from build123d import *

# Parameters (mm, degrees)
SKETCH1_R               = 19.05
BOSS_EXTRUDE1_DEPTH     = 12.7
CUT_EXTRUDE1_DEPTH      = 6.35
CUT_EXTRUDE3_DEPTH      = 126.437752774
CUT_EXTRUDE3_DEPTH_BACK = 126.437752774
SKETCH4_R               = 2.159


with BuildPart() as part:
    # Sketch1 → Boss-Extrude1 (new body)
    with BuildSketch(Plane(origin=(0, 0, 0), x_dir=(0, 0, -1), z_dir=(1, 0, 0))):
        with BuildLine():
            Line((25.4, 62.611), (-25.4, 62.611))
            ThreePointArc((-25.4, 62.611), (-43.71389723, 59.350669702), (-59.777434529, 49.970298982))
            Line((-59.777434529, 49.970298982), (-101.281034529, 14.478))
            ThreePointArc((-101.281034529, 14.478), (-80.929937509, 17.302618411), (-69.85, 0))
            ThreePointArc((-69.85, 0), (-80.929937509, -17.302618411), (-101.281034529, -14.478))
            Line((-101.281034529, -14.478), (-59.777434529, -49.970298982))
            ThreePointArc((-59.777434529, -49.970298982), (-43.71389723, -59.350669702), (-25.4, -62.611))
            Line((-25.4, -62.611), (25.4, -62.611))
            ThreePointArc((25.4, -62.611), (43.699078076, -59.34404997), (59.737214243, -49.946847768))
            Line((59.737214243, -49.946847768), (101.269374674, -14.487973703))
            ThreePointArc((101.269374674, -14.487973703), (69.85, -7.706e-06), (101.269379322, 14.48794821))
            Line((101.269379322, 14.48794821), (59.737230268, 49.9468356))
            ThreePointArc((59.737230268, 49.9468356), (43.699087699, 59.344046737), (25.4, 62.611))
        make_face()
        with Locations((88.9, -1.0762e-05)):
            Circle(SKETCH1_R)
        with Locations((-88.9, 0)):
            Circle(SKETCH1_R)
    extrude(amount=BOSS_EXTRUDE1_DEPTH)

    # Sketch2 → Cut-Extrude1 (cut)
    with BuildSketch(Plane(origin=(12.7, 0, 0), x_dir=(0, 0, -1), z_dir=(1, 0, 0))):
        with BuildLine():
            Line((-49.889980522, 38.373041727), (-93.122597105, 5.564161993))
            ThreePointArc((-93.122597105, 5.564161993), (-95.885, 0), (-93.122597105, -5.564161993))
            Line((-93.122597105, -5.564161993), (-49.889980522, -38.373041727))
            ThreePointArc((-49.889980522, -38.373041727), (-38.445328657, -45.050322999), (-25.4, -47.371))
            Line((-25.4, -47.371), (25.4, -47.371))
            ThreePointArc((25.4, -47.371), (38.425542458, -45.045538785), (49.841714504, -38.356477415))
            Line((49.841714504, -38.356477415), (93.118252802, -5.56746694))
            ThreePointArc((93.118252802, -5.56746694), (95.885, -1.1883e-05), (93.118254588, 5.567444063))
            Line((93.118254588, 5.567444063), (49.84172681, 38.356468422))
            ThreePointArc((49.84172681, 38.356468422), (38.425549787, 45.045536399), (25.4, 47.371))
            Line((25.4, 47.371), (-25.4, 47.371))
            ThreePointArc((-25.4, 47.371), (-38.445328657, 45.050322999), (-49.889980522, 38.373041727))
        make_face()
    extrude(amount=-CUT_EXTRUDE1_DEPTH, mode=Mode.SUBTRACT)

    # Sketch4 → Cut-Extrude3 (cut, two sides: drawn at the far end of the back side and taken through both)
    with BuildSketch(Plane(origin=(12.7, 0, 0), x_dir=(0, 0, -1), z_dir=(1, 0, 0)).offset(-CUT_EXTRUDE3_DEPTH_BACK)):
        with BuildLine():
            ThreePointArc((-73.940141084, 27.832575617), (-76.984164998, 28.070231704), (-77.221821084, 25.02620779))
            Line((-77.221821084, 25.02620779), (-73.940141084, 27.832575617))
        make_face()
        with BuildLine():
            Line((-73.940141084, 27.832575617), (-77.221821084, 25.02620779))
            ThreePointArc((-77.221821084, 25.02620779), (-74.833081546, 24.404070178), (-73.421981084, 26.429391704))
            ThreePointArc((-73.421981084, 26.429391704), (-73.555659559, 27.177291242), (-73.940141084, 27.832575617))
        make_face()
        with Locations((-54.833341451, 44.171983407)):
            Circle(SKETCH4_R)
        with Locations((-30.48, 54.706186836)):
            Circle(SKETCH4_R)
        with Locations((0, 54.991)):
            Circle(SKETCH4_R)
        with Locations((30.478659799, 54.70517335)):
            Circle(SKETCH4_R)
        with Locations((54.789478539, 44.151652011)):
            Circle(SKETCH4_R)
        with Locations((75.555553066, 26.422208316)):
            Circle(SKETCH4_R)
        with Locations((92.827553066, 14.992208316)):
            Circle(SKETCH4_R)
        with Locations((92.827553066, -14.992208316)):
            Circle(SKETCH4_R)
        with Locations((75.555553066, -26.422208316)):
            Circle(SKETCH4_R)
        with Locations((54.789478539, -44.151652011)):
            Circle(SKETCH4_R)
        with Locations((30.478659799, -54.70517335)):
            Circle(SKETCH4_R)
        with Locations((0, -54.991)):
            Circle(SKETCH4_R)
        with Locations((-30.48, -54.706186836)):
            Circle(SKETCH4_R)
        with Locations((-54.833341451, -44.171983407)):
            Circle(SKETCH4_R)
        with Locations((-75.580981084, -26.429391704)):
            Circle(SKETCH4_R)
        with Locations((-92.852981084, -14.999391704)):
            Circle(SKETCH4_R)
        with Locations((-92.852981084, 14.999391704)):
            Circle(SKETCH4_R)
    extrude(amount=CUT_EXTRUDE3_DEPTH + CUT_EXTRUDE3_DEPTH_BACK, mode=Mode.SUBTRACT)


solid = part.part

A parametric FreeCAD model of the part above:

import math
import FreeCAD as App
import Part
import Sketcher
from FreeCAD import Vector
Q = App.Units.Quantity

doc = App.newDocument("Part")
body = doc.addObject("PartDesign::Body", "Body")

sketch1 = body.newObject("Sketcher::SketchObject", "Sketch")
sketch1.AttachmentSupport = (doc.getObject("YZ_Plane"), [""])
sketch1.MapMode = "FlatFace"
sketch1.addGeometry([
    Part.LineSegment(Vector(62.611, -25.4, 0), Vector(62.611, 25.4, 0)),
    Part.ArcOfCircle(Part.Circle(Vector(9.544508, 25.4, 0), Vector(0, 0, 1), 53.066492), math.radians(0), math.radians(40.377298)),
    Part.LineSegment(Vector(49.970299, 59.777435, 0), Vector(14.478, 101.281035, 0)),
    Part.ArcOfCircle(Part.Circle(Vector(0, 88.9, 0), Vector(0, 0, 1), 19.05), math.radians(40.535802), math.radians(139.464198)),
    Part.LineSegment(Vector(-14.478, 101.281035, 0), Vector(-49.970299, 59.777435, 0)),
    Part.ArcOfCircle(Part.Circle(Vector(-9.544508, 25.4, 0), Vector(0, 0, 1), 53.066492), math.radians(139.622702), math.radians(180)),
    Part.LineSegment(Vector(-62.611, 25.4, 0), Vector(-62.611, -25.4, 0)),
    Part.ArcOfCircle(Part.Circle(Vector(-9.728462, -25.4, 0), Vector(0, 0, 1), 52.882538), math.radians(180), math.radians(220.489675)),
    Part.LineSegment(Vector(-49.946848, -59.737214, 0), Vector(-14.487974, -101.269375, 0)),
    Part.ArcOfCircle(Part.Circle(Vector(-0.000011, -88.9, 0), Vector(0, 0, 1), 19.05), math.radians(-139.510325), math.radians(-40.489693)),
    Part.LineSegment(Vector(14.487948, -101.269379, 0), Vector(49.946836, -59.73723, 0)),
    Part.ArcOfCircle(Part.Circle(Vector(9.728457, -25.4, 0), Vector(0, 0, 1), 52.882543), math.radians(-40.489693), math.radians(0)),
], False)
sketch1.addConstraint([
    Sketcher.Constraint("Tangent", 0, 2, 1, 1),
    Sketcher.Constraint("Coincident", 1, 2, 2, 1),
    Sketcher.Constraint("Tangent", 2, 2, 3, 1),
    Sketcher.Constraint("Tangent", 3, 2, 4, 1),
    Sketcher.Constraint("Coincident", 4, 2, 5, 1),
    Sketcher.Constraint("Tangent", 5, 2, 6, 1),
    Sketcher.Constraint("Tangent", 6, 2, 7, 1),
    Sketcher.Constraint("Tangent", 7, 2, 8, 1),
    Sketcher.Constraint("Tangent", 8, 2, 9, 1),
    Sketcher.Constraint("Tangent", 9, 2, 10, 1),
    Sketcher.Constraint("Tangent", 10, 2, 11, 1),
    Sketcher.Constraint("Tangent", 11, 2, 0, 1),
    Sketcher.Constraint("Vertical", 0),
    Sketcher.Constraint("Vertical", 6),
    Sketcher.Constraint("Equal", 1, 5),
    Sketcher.Constraint("Equal", 3, 9),
    Sketcher.Constraint("Symmetric", 0, 2, 6, 2, -1, 1),
    Sketcher.Constraint("Symmetric", 7, 3, 11, 3, -2),
    Sketcher.Constraint("Symmetric", 2, 2, 3, 2, -2),
    Sketcher.Constraint("Horizontal", 1, 3, 5, 3),
    Sketcher.Constraint("Equal", 4, 8),
    Sketcher.Constraint("Equal", 8, 10),
    Sketcher.Constraint("DistanceY", 0, 1, 0, 2, Q("2 in")),
    Sketcher.Constraint("Radius", 3, Q("0.75 in")),
    Sketcher.Constraint("DistanceY", 9, 3, 3, 3, Q("7 in")),
    Sketcher.Constraint("DistanceY", -1, 1, 3, 3, Q("3.5 in")),
    Sketcher.Constraint("Distance", 2, Q("2.15 in")),
    Sketcher.Constraint("DistanceX", -1, 1, 2, 2, Q("0.57 in")),
    Sketcher.Constraint("DistanceX", -1, 1, 0, 2, Q("2.465 in")),
])
pad1 = body.newObject("PartDesign::Pad", "Pad")
pad1.Profile = sketch1
pad1.Length = Q("0.5 in")

sketch2 = body.newObject("Sketcher::SketchObject", "Sketch001")
sketch2.AttachmentSupport = (doc.getObject("YZ_Plane"), [""])
sketch2.MapMode = "FlatFace"
sketch2.AttachmentOffset = App.Placement(Vector(0, 0, 0.5 * 25.4), App.Rotation())
sketch2.addGeometry([
    Part.LineSegment(Vector(38.373042, 49.889981, 0), Vector(5.564162, 93.122597, 0)),
    Part.ArcOfCircle(Part.Circle(Vector(0, 88.9, 0), Vector(0, 0, 1), 6.985), math.radians(37.194566), math.radians(142.805434)),
    Part.LineSegment(Vector(-5.564162, 93.122597, 0), Vector(-38.373042, 49.889981, 0)),
    Part.ArcOfCircle(Part.Circle(Vector(-9.544508, 25.4, 0), Vector(0, 0, 1), 37.826492), math.radians(139.651937), math.radians(180)),
    Part.LineSegment(Vector(-47.371, 25.4, 0), Vector(-47.371, -25.4, 0)),
    Part.ArcOfCircle(Part.Circle(Vector(-9.728462, -25.4, 0), Vector(0, 0, 1), 37.642538), math.radians(-180), math.radians(-139.510325)),
    Part.LineSegment(Vector(-38.356477, -49.841715, 0), Vector(-5.567467, -93.118253, 0)),
    Part.ArcOfCircle(Part.Circle(Vector(-0.000011, -88.9, 0), Vector(0, 0, 1), 6.985), math.radians(-142.850156), math.radians(-37.149863)),
    Part.LineSegment(Vector(5.567444, -93.118255, 0), Vector(38.356468, -49.841727, 0)),
    Part.ArcOfCircle(Part.Circle(Vector(9.728457, -25.4, 0), Vector(0, 0, 1), 37.642543), math.radians(-40.489693), math.radians(0)),
    Part.LineSegment(Vector(47.371, -25.4, 0), Vector(47.371, 25.4, 0)),
    Part.ArcOfCircle(Part.Circle(Vector(9.544508, 25.4, 0), Vector(0, 0, 1), 37.826492), math.radians(0), math.radians(40.348063)),
], False)
sketch2.addConstraint([
    Sketcher.Constraint("Tangent", 0, 2, 1, 1),
    Sketcher.Constraint("Tangent", 1, 2, 2, 1),
    Sketcher.Constraint("Coincident", 2, 2, 3, 1),
    Sketcher.Constraint("Tangent", 3, 2, 4, 1),
    Sketcher.Constraint("Tangent", 4, 2, 5, 1),
    Sketcher.Constraint("Coincident", 5, 2, 6, 1),
    Sketcher.Constraint("Tangent", 6, 2, 7, 1),
    Sketcher.Constraint("Tangent", 7, 2, 8, 1),
    Sketcher.Constraint("Coincident", 8, 2, 9, 1),
    Sketcher.Constraint("Tangent", 9, 2, 10, 1),
    Sketcher.Constraint("Tangent", 10, 2, 11, 1),
    Sketcher.Constraint("Coincident", 11, 2, 0, 1),
    Sketcher.Constraint("Vertical", 4),
    Sketcher.Constraint("Vertical", 10),
    Sketcher.Constraint("Equal", 1, 7),
    Sketcher.Constraint("Equal", 3, 11),
    Sketcher.Constraint("Symmetric", 3, 2, 9, 2, -1, 1),
    Sketcher.Constraint("Symmetric", 5, 3, 9, 3, -2),
    Sketcher.Constraint("Symmetric", 0, 2, 1, 2, -2),
    Sketcher.Constraint("Horizontal", 3, 3, 11, 3),
    Sketcher.Constraint("Horizontal", 6, 2, 7, 2),
    Sketcher.Constraint("Equal", 6, 8),
    Sketcher.Constraint("DistanceY", 4, 2, 4, 1, Q("2 in")),
    Sketcher.Constraint("Radius", 1, Q("0.275 in")),
    Sketcher.Constraint("DistanceY", 7, 3, 1, 3, Q("7 in")),
    Sketcher.Constraint("DistanceY", -1, 1, 1, 3, Q("3.5 in")),
    Sketcher.Constraint("DistanceX", 3, 2, -1, 1, Q("1.865 in")),
    Sketcher.Constraint("Radius", 5, 37.642538),
    Sketcher.Constraint("Radius", 3, 37.826492),
    Sketcher.Constraint("DistanceX", -1, 1, 0, 2, 5.564162),
    Sketcher.Constraint("DistanceX", -1, 1, 8, 2, 38.356468),
])
pocket1 = body.newObject("PartDesign::Pocket", "Pocket")
pocket1.Profile = sketch2
pocket1.Length = Q("0.25 in")

sketch3 = body.newObject("Sketcher::SketchObject", "Sketch002")
sketch3.AttachmentSupport = (doc.getObject("YZ_Plane"), [""])
sketch3.MapMode = "FlatFace"
sketch3.AttachmentOffset = App.Placement(Vector(0, 0, 0.5 * 25.4), App.Rotation())
sketch3.addGeometry([
    Part.ArcOfCircle(Part.Circle(Vector(26.429392, 75.580981, 0), Vector(0, 0, 1), 2.159), math.radians(-49.464198), math.radians(130.535802)),
    Part.ArcOfCircle(Part.Circle(Vector(26.429392, 75.580981, 0), Vector(0, 0, 1), 2.159), math.radians(130.535802), math.radians(270)),
    Part.ArcOfCircle(Part.Circle(Vector(26.429392, 75.580981, 0), Vector(0, 0, 1), 2.159), math.radians(-90), math.radians(-49.464198)),
    Part.Circle(Vector(44.171983, 54.833341, 0), Vector(0, 0, 1), 2.159),
    Part.Circle(Vector(54.706187, 30.48, 0), Vector(0, 0, 1), 2.159),
    Part.Circle(Vector(54.991, 0, 0), Vector(0, 0, 1), 2.159),
    Part.Circle(Vector(54.705173, -30.47866, 0), Vector(0, 0, 1), 2.159),
    Part.Circle(Vector(44.151652, -54.789479, 0), Vector(0, 0, 1), 2.159),
    Part.Circle(Vector(26.422208, -75.555553, 0), Vector(0, 0, 1), 2.159),
    Part.Circle(Vector(14.992208, -92.827553, 0), Vector(0, 0, 1), 2.159),
    Part.Circle(Vector(-14.992208, -92.827553, 0), Vector(0, 0, 1), 2.159),
    Part.Circle(Vector(-26.422208, -75.555553, 0), Vector(0, 0, 1), 2.159),
    Part.Circle(Vector(-44.151652, -54.789479, 0), Vector(0, 0, 1), 2.159),
    Part.Circle(Vector(-54.705173, -30.47866, 0), Vector(0, 0, 1), 2.159),
    Part.Circle(Vector(-54.991, 0, 0), Vector(0, 0, 1), 2.159),
    Part.Circle(Vector(-54.706187, 30.48, 0), Vector(0, 0, 1), 2.159),
    Part.Circle(Vector(-44.171983, 54.833341, 0), Vector(0, 0, 1), 2.159),
    Part.Circle(Vector(-26.429392, 75.580981, 0), Vector(0, 0, 1), 2.159),
    Part.Circle(Vector(-14.999392, 92.852981, 0), Vector(0, 0, 1), 2.159),
    Part.Circle(Vector(14.999392, 92.852981, 0), Vector(0, 0, 1), 2.159),
], False)
sketch3.addConstraint([
    Sketcher.Constraint("Tangent", 0, 2, 1, 1),
    Sketcher.Constraint("Tangent", 1, 2, 2, 1),
    Sketcher.Constraint("Tangent", 2, 2, 0, 1),
    Sketcher.Constraint("Equal", 2, 3),
    Sketcher.Constraint("Equal", 3, 4),
    Sketcher.Constraint("Equal", 4, 5),
    Sketcher.Constraint("Equal", 5, 6),
    Sketcher.Constraint("Equal", 6, 7),
    Sketcher.Constraint("Equal", 7, 8),
    Sketcher.Constraint("Equal", 8, 9),
    Sketcher.Constraint("Equal", 9, 10),
    Sketcher.Constraint("Equal", 10, 11),
    Sketcher.Constraint("Equal", 11, 12),
    Sketcher.Constraint("Equal", 12, 13),
    Sketcher.Constraint("Equal", 13, 14),
    Sketcher.Constraint("Equal", 14, 15),
    Sketcher.Constraint("Equal", 15, 16),
    Sketcher.Constraint("Equal", 16, 17),
    Sketcher.Constraint("Equal", 17, 18),
    Sketcher.Constraint("Equal", 18, 19),
    Sketcher.Constraint("Symmetric", 5, 3, 14, 3, -1, 1),
    Sketcher.Constraint("Symmetric", 9, 3, 10, 3, -2),
    Sketcher.Constraint("Symmetric", 8, 3, 11, 3, -2),
    Sketcher.Constraint("Symmetric", 7, 3, 12, 3, -2),
    Sketcher.Constraint("Symmetric", 6, 3, 13, 3, -2),
    Sketcher.Constraint("Symmetric", 4, 3, 15, 3, -2),
    Sketcher.Constraint("Symmetric", 3, 3, 16, 3, -2),
    Sketcher.Constraint("Symmetric", 0, 3, 17, 3, -2),
    Sketcher.Constraint("Symmetric", 18, 3, 19, 3, -2),
    Sketcher.Constraint("PointOnObject", 5, 3, -1),
    Sketcher.Constraint("Vertical", 2, 3, 1, 2),
    Sketcher.Constraint("Diameter", 3, Q("0.17 in")),
    Sketcher.Constraint("DistanceY", -1, 1, 4, 3, Q("1.2 in")),
    Sketcher.Constraint("DistanceX", 9, 3, 8, 3, Q("0.45 in")),
    Sketcher.Constraint("DistanceY", 9, 3, 8, 3, Q("0.68 in")),
    Sketcher.Constraint("DistanceX", 14, 3, 5, 3, Q("4.33 in")),
    Sketcher.Constraint("DistanceX", 17, 3, 18, 3, Q("0.45 in")),
    Sketcher.Constraint("DistanceY", 17, 3, 18, 3, Q("0.68 in")),
    Sketcher.Constraint("DistanceY", 2, 3, 0, 2, Q("0.0646 in")),
    Sketcher.Constraint("DistanceY", 1, 2, 2, 2, Q("0.0204 in")),
    Sketcher.Constraint("DistanceY", 6, 3, 3, 3, 85.312001),
    Sketcher.Constraint("DistanceX", -1, 1, 0, 3, 26.429392),
    Sketcher.Constraint("DistanceY", -1, 1, 0, 3, 75.580981),
    Sketcher.Constraint("DistanceY", -1, 1, 3, 3, 54.833341),
    Sketcher.Constraint("DistanceY", 7, 3, -1, 1, 54.789479),
    Sketcher.Constraint("DistanceX", -1, 1, 8, 3, 26.422208),
    Sketcher.Constraint("DistanceX", 0, 3, 3, 3, 17.742592),
    Sketcher.Constraint("DistanceX", 3, 3, 6, 3, 10.53319),
    Sketcher.Constraint("DistanceX", 7, 3, 6, 3, 10.553521),
    Sketcher.Constraint("DistanceX", 8, 3, 4, 3, 28.283979),
    Sketcher.Constraint("DistanceY", 8, 3, -1, 1, 75.555553),
])
pocket2 = body.newObject("PartDesign::Pocket", "Pocket001")
pocket2.Profile = sketch3
pocket2.Type = "ThroughAll"
pocket2.Midplane = True

doc.recompute()
